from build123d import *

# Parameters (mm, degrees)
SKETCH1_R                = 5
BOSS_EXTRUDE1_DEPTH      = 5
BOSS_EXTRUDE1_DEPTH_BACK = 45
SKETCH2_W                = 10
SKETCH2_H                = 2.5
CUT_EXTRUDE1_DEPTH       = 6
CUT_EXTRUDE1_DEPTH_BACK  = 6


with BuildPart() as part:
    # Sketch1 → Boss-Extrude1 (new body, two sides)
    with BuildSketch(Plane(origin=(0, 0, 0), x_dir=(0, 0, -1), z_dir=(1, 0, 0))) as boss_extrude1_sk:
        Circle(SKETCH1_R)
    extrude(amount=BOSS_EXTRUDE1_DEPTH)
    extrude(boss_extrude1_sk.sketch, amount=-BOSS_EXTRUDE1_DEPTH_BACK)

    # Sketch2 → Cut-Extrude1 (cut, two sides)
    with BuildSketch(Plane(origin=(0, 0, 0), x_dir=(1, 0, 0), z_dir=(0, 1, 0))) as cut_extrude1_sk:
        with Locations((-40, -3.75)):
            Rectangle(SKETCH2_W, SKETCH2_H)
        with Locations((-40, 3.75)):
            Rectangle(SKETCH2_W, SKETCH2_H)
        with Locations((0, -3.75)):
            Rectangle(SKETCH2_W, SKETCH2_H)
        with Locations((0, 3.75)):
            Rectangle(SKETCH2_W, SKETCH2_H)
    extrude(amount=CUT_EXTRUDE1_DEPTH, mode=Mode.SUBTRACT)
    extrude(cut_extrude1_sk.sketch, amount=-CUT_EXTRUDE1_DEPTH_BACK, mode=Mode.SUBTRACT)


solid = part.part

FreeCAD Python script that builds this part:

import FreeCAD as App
import Part
import Sketcher
from FreeCAD import Vector
Q = App.Units.Quantity

doc = App.newDocument("Part")
body = doc.addObject("PartDesign::Body", "Body")

# Sketch on YZ plane
sketch1 = body.newObject("Sketcher::SketchObject", "Sketch")
sketch1.AttachmentSupport = (doc.getObject("YZ_Plane"), [""])
sketch1.MapMode = "FlatFace"
sketch1.addGeometry(Part.Circle(Vector(0, 0, 0), Vector(0, 0, 1), 5), False)
sketch1.addConstraint([
    Sketcher.Constraint("Coincident", 0, 3, -1, 1),
    Sketcher.Constraint("Diameter", 0, Q("10 mm")),
])
pad1 = body.newObject("PartDesign::Pad", "Pad")
pad1.Profile = sketch1
pad1.Type = "TwoLengths"
pad1.Length = 5
pad1.Length2 = 45

# Sketch on XZ plane
sketch2 = body.newObject("Sketcher::SketchObject", "Sketch001")
sketch2.AttachmentSupport = (doc.getObject("XZ_Plane"), [""])
sketch2.MapMode = "FlatFace"
sketch2.addGeometry([
    Part.LineSegment(Vector(-45, 2.5, 0), Vector(-45, 5, 0)),  # 0
    Part.LineSegment(Vector(-45, 5, 0), Vector(-35, 5, 0)),  # 1
    Part.LineSegment(Vector(-35, 5, 0), Vector(-35, 2.5, 0)),  # 2
    Part.LineSegment(Vector(-35, 2.5, 0), Vector(-45, 2.5, 0)),  # 3
    Part.LineSegment(Vector(-45, -5, 0), Vector(-45, -2.5, 0)),  # 4
    Part.LineSegment(Vector(-45, -2.5, 0), Vector(-35, -2.5, 0)),  # 5
    Part.LineSegment(Vector(-35, -2.5, 0), Vector(-35, -5, 0)),  # 6
    Part.LineSegment(Vector(-35, -5, 0), Vector(-45, -5, 0)),  # 7
    Part.LineSegment(Vector(-5, 2.5, 0), Vector(-5, 5, 0)),  # 8
    Part.LineSegment(Vector(-5, 5, 0), Vector(5, 5, 0)),  # 9
    Part.LineSegment(Vector(5, 5, 0), Vector(5, 2.5, 0)),  # 10
    Part.LineSegment(Vector(5, 2.5, 0), Vector(-5, 2.5, 0)),  # 11
    Part.LineSegment(Vector(-5, -5, 0), Vector(-5, -2.5, 0)),  # 12
    Part.LineSegment(Vector(-5, -2.5, 0), Vector(5, -2.5, 0)),  # 13
    Part.LineSegment(Vector(5, -2.5, 0), Vector(5, -5, 0)),  # 14
    Part.LineSegment(Vector(5, -5, 0), Vector(-5, -5, 0)),  # 15
], False)
sketch2.addConstraint([
    Sketcher.Constraint("Coincident", 0, 2, 1, 1),
    Sketcher.Constraint("Coincident", 1, 2, 2, 1),
    Sketcher.Constraint("Coincident", 2, 2, 3, 1),
    Sketcher.Constraint("Coincident", 3, 2, 0, 1),
    Sketcher.Constraint("Coincident", 4, 2, 5, 1),
    Sketcher.Constraint("Coincident", 5, 2, 6, 1),
    Sketcher.Constraint("Coincident", 6, 2, 7, 1),
    Sketcher.Constraint("Coincident", 7, 2, 4, 1),
    Sketcher.Constraint("Coincident", 8, 2, 9, 1),
    Sketcher.Constraint("Coincident", 9, 2, 10, 1),
    Sketcher.Constraint("Coincident", 10, 2, 11, 1),
    Sketcher.Constraint("Coincident", 11, 2, 8, 1),
    Sketcher.Constraint("Coincident", 12, 2, 13, 1),
    Sketcher.Constraint("Coincident", 13, 2, 14, 1),
    Sketcher.Constraint("Coincident", 14, 2, 15, 1),
    Sketcher.Constraint("Coincident", 15, 2, 12, 1),
    Sketcher.Constraint("Vertical", 0),
    Sketcher.Constraint("Horizontal", 1),
    Sketcher.Constraint("Vertical", 2),
    Sketcher.Constraint("Horizontal", 3),
    Sketcher.Constraint("Vertical", 4),
    Sketcher.Constraint("Horizontal", 5),
    Sketcher.Constraint("Vertical", 6),
    Sketcher.Constraint("Horizontal", 7),
    Sketcher.Constraint("Vertical", 8),
    Sketcher.Constraint("Horizontal", 9),
    Sketcher.Constraint("Vertical", 10),
    Sketcher.Constraint("Horizontal", 11),
    Sketcher.Constraint("Vertical", 12),
    Sketcher.Constraint("Horizontal", 13),
    Sketcher.Constraint("Vertical", 14),
    Sketcher.Constraint("Horizontal", 15),
    Sketcher.Constraint("Symmetric", 10, 2, 12, 2, -1, 1),
    Sketcher.Constraint("Symmetric", 8, 2, 14, 2, -1, 1),
    Sketcher.Constraint("Symmetric", 3, 2, 4, 2, -1),
    Sketcher.Constraint("Symmetric", 1, 2, 6, 2, -1),
    Sketcher.Constraint("Horizontal", 1, 2, 8, 2),
    Sketcher.Constraint("Horizontal", 3, 2, 10, 2),
    Sketcher.Constraint("Vertical", 11, 2, 12, 2),
    Sketcher.Constraint("Equal", 7, 9),
    Sketcher.Constraint("DistanceX", 1, 1, 1, 2, Q("10 mm")),
    Sketcher.Constraint("DistanceY", 0, 1, 0, 2, Q("2.5 mm")),
    Sketcher.Constraint("DistanceX", 0, 2, -1, 1, Q("45 mm")),
    Sketcher.Constraint("DistanceY", -1, 1, 0, 2, Q("5 mm")),
])
pocket1 = body.newObject("PartDesign::Pocket", "Pocket")
pocket1.Profile = sketch2
pocket1.Type = "ThroughAll"
pocket1.Midplane = True

doc.recompute()
